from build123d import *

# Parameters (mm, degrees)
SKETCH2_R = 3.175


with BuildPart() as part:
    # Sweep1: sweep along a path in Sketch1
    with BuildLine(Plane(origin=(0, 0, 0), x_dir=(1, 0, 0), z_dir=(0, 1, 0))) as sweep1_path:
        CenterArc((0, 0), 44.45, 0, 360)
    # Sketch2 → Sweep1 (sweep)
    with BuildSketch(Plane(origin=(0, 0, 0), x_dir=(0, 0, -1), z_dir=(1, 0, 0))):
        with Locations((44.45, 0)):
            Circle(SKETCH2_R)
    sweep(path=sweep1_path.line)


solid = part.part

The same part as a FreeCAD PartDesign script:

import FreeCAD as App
import Part
import Sketcher
from FreeCAD import Vector
Q = App.Units.Quantity

doc = App.newDocument("Part")
body = doc.addObject("PartDesign::Body", "Body")

# Sketch on YZ plane
sketch1 = doc.addObject("Sketcher::SketchObject", "Sketch")
body.addObject(sketch1)
sketch1.AttachmentSupport = (doc.YZ_Plane, [""])
sketch1.MapMode = "FlatFace"
sketch1.addGeometry(Part.Circle(Vector(0, -44.5, 0), Vector(0, 0, 1), 3.2), False)
sketch1.addConstraint([
    Sketcher.Constraint("PointOnObject", 0, 3, -2),
    Sketcher.Constraint("Diameter", 0, Q("0.25 in")),
    Sketcher.Constraint("DistanceY", 0, 3, -1, 1, Q("1.75 in")),
])

# Sketch on XZ plane
sketch2 = doc.addObject("Sketcher::SketchObject", "Sketch001")
body.addObject(sketch2)
sketch2.AttachmentSupport = (doc.XZ_Plane, [""])
sketch2.MapMode = "FlatFace"
sketch2.addGeometry(Part.Circle(Vector(0, 0, 0), Vector(0, 0, 1), 44), False)
sketch2.addConstraint([
    Sketcher.Constraint("Coincident", 0, 3, -1, 1),
    Sketcher.Constraint("Diameter", 0, Q("3.5 in")),
])
doc.recompute()

additivepipe = doc.addObject("PartDesign::AdditivePipe", "AdditivePipe")
body.addObject(additivepipe)
additivepipe.Profile = sketch1
additivepipe.Spine = (sketch2, ["Edge1"])

doc.recompute()
